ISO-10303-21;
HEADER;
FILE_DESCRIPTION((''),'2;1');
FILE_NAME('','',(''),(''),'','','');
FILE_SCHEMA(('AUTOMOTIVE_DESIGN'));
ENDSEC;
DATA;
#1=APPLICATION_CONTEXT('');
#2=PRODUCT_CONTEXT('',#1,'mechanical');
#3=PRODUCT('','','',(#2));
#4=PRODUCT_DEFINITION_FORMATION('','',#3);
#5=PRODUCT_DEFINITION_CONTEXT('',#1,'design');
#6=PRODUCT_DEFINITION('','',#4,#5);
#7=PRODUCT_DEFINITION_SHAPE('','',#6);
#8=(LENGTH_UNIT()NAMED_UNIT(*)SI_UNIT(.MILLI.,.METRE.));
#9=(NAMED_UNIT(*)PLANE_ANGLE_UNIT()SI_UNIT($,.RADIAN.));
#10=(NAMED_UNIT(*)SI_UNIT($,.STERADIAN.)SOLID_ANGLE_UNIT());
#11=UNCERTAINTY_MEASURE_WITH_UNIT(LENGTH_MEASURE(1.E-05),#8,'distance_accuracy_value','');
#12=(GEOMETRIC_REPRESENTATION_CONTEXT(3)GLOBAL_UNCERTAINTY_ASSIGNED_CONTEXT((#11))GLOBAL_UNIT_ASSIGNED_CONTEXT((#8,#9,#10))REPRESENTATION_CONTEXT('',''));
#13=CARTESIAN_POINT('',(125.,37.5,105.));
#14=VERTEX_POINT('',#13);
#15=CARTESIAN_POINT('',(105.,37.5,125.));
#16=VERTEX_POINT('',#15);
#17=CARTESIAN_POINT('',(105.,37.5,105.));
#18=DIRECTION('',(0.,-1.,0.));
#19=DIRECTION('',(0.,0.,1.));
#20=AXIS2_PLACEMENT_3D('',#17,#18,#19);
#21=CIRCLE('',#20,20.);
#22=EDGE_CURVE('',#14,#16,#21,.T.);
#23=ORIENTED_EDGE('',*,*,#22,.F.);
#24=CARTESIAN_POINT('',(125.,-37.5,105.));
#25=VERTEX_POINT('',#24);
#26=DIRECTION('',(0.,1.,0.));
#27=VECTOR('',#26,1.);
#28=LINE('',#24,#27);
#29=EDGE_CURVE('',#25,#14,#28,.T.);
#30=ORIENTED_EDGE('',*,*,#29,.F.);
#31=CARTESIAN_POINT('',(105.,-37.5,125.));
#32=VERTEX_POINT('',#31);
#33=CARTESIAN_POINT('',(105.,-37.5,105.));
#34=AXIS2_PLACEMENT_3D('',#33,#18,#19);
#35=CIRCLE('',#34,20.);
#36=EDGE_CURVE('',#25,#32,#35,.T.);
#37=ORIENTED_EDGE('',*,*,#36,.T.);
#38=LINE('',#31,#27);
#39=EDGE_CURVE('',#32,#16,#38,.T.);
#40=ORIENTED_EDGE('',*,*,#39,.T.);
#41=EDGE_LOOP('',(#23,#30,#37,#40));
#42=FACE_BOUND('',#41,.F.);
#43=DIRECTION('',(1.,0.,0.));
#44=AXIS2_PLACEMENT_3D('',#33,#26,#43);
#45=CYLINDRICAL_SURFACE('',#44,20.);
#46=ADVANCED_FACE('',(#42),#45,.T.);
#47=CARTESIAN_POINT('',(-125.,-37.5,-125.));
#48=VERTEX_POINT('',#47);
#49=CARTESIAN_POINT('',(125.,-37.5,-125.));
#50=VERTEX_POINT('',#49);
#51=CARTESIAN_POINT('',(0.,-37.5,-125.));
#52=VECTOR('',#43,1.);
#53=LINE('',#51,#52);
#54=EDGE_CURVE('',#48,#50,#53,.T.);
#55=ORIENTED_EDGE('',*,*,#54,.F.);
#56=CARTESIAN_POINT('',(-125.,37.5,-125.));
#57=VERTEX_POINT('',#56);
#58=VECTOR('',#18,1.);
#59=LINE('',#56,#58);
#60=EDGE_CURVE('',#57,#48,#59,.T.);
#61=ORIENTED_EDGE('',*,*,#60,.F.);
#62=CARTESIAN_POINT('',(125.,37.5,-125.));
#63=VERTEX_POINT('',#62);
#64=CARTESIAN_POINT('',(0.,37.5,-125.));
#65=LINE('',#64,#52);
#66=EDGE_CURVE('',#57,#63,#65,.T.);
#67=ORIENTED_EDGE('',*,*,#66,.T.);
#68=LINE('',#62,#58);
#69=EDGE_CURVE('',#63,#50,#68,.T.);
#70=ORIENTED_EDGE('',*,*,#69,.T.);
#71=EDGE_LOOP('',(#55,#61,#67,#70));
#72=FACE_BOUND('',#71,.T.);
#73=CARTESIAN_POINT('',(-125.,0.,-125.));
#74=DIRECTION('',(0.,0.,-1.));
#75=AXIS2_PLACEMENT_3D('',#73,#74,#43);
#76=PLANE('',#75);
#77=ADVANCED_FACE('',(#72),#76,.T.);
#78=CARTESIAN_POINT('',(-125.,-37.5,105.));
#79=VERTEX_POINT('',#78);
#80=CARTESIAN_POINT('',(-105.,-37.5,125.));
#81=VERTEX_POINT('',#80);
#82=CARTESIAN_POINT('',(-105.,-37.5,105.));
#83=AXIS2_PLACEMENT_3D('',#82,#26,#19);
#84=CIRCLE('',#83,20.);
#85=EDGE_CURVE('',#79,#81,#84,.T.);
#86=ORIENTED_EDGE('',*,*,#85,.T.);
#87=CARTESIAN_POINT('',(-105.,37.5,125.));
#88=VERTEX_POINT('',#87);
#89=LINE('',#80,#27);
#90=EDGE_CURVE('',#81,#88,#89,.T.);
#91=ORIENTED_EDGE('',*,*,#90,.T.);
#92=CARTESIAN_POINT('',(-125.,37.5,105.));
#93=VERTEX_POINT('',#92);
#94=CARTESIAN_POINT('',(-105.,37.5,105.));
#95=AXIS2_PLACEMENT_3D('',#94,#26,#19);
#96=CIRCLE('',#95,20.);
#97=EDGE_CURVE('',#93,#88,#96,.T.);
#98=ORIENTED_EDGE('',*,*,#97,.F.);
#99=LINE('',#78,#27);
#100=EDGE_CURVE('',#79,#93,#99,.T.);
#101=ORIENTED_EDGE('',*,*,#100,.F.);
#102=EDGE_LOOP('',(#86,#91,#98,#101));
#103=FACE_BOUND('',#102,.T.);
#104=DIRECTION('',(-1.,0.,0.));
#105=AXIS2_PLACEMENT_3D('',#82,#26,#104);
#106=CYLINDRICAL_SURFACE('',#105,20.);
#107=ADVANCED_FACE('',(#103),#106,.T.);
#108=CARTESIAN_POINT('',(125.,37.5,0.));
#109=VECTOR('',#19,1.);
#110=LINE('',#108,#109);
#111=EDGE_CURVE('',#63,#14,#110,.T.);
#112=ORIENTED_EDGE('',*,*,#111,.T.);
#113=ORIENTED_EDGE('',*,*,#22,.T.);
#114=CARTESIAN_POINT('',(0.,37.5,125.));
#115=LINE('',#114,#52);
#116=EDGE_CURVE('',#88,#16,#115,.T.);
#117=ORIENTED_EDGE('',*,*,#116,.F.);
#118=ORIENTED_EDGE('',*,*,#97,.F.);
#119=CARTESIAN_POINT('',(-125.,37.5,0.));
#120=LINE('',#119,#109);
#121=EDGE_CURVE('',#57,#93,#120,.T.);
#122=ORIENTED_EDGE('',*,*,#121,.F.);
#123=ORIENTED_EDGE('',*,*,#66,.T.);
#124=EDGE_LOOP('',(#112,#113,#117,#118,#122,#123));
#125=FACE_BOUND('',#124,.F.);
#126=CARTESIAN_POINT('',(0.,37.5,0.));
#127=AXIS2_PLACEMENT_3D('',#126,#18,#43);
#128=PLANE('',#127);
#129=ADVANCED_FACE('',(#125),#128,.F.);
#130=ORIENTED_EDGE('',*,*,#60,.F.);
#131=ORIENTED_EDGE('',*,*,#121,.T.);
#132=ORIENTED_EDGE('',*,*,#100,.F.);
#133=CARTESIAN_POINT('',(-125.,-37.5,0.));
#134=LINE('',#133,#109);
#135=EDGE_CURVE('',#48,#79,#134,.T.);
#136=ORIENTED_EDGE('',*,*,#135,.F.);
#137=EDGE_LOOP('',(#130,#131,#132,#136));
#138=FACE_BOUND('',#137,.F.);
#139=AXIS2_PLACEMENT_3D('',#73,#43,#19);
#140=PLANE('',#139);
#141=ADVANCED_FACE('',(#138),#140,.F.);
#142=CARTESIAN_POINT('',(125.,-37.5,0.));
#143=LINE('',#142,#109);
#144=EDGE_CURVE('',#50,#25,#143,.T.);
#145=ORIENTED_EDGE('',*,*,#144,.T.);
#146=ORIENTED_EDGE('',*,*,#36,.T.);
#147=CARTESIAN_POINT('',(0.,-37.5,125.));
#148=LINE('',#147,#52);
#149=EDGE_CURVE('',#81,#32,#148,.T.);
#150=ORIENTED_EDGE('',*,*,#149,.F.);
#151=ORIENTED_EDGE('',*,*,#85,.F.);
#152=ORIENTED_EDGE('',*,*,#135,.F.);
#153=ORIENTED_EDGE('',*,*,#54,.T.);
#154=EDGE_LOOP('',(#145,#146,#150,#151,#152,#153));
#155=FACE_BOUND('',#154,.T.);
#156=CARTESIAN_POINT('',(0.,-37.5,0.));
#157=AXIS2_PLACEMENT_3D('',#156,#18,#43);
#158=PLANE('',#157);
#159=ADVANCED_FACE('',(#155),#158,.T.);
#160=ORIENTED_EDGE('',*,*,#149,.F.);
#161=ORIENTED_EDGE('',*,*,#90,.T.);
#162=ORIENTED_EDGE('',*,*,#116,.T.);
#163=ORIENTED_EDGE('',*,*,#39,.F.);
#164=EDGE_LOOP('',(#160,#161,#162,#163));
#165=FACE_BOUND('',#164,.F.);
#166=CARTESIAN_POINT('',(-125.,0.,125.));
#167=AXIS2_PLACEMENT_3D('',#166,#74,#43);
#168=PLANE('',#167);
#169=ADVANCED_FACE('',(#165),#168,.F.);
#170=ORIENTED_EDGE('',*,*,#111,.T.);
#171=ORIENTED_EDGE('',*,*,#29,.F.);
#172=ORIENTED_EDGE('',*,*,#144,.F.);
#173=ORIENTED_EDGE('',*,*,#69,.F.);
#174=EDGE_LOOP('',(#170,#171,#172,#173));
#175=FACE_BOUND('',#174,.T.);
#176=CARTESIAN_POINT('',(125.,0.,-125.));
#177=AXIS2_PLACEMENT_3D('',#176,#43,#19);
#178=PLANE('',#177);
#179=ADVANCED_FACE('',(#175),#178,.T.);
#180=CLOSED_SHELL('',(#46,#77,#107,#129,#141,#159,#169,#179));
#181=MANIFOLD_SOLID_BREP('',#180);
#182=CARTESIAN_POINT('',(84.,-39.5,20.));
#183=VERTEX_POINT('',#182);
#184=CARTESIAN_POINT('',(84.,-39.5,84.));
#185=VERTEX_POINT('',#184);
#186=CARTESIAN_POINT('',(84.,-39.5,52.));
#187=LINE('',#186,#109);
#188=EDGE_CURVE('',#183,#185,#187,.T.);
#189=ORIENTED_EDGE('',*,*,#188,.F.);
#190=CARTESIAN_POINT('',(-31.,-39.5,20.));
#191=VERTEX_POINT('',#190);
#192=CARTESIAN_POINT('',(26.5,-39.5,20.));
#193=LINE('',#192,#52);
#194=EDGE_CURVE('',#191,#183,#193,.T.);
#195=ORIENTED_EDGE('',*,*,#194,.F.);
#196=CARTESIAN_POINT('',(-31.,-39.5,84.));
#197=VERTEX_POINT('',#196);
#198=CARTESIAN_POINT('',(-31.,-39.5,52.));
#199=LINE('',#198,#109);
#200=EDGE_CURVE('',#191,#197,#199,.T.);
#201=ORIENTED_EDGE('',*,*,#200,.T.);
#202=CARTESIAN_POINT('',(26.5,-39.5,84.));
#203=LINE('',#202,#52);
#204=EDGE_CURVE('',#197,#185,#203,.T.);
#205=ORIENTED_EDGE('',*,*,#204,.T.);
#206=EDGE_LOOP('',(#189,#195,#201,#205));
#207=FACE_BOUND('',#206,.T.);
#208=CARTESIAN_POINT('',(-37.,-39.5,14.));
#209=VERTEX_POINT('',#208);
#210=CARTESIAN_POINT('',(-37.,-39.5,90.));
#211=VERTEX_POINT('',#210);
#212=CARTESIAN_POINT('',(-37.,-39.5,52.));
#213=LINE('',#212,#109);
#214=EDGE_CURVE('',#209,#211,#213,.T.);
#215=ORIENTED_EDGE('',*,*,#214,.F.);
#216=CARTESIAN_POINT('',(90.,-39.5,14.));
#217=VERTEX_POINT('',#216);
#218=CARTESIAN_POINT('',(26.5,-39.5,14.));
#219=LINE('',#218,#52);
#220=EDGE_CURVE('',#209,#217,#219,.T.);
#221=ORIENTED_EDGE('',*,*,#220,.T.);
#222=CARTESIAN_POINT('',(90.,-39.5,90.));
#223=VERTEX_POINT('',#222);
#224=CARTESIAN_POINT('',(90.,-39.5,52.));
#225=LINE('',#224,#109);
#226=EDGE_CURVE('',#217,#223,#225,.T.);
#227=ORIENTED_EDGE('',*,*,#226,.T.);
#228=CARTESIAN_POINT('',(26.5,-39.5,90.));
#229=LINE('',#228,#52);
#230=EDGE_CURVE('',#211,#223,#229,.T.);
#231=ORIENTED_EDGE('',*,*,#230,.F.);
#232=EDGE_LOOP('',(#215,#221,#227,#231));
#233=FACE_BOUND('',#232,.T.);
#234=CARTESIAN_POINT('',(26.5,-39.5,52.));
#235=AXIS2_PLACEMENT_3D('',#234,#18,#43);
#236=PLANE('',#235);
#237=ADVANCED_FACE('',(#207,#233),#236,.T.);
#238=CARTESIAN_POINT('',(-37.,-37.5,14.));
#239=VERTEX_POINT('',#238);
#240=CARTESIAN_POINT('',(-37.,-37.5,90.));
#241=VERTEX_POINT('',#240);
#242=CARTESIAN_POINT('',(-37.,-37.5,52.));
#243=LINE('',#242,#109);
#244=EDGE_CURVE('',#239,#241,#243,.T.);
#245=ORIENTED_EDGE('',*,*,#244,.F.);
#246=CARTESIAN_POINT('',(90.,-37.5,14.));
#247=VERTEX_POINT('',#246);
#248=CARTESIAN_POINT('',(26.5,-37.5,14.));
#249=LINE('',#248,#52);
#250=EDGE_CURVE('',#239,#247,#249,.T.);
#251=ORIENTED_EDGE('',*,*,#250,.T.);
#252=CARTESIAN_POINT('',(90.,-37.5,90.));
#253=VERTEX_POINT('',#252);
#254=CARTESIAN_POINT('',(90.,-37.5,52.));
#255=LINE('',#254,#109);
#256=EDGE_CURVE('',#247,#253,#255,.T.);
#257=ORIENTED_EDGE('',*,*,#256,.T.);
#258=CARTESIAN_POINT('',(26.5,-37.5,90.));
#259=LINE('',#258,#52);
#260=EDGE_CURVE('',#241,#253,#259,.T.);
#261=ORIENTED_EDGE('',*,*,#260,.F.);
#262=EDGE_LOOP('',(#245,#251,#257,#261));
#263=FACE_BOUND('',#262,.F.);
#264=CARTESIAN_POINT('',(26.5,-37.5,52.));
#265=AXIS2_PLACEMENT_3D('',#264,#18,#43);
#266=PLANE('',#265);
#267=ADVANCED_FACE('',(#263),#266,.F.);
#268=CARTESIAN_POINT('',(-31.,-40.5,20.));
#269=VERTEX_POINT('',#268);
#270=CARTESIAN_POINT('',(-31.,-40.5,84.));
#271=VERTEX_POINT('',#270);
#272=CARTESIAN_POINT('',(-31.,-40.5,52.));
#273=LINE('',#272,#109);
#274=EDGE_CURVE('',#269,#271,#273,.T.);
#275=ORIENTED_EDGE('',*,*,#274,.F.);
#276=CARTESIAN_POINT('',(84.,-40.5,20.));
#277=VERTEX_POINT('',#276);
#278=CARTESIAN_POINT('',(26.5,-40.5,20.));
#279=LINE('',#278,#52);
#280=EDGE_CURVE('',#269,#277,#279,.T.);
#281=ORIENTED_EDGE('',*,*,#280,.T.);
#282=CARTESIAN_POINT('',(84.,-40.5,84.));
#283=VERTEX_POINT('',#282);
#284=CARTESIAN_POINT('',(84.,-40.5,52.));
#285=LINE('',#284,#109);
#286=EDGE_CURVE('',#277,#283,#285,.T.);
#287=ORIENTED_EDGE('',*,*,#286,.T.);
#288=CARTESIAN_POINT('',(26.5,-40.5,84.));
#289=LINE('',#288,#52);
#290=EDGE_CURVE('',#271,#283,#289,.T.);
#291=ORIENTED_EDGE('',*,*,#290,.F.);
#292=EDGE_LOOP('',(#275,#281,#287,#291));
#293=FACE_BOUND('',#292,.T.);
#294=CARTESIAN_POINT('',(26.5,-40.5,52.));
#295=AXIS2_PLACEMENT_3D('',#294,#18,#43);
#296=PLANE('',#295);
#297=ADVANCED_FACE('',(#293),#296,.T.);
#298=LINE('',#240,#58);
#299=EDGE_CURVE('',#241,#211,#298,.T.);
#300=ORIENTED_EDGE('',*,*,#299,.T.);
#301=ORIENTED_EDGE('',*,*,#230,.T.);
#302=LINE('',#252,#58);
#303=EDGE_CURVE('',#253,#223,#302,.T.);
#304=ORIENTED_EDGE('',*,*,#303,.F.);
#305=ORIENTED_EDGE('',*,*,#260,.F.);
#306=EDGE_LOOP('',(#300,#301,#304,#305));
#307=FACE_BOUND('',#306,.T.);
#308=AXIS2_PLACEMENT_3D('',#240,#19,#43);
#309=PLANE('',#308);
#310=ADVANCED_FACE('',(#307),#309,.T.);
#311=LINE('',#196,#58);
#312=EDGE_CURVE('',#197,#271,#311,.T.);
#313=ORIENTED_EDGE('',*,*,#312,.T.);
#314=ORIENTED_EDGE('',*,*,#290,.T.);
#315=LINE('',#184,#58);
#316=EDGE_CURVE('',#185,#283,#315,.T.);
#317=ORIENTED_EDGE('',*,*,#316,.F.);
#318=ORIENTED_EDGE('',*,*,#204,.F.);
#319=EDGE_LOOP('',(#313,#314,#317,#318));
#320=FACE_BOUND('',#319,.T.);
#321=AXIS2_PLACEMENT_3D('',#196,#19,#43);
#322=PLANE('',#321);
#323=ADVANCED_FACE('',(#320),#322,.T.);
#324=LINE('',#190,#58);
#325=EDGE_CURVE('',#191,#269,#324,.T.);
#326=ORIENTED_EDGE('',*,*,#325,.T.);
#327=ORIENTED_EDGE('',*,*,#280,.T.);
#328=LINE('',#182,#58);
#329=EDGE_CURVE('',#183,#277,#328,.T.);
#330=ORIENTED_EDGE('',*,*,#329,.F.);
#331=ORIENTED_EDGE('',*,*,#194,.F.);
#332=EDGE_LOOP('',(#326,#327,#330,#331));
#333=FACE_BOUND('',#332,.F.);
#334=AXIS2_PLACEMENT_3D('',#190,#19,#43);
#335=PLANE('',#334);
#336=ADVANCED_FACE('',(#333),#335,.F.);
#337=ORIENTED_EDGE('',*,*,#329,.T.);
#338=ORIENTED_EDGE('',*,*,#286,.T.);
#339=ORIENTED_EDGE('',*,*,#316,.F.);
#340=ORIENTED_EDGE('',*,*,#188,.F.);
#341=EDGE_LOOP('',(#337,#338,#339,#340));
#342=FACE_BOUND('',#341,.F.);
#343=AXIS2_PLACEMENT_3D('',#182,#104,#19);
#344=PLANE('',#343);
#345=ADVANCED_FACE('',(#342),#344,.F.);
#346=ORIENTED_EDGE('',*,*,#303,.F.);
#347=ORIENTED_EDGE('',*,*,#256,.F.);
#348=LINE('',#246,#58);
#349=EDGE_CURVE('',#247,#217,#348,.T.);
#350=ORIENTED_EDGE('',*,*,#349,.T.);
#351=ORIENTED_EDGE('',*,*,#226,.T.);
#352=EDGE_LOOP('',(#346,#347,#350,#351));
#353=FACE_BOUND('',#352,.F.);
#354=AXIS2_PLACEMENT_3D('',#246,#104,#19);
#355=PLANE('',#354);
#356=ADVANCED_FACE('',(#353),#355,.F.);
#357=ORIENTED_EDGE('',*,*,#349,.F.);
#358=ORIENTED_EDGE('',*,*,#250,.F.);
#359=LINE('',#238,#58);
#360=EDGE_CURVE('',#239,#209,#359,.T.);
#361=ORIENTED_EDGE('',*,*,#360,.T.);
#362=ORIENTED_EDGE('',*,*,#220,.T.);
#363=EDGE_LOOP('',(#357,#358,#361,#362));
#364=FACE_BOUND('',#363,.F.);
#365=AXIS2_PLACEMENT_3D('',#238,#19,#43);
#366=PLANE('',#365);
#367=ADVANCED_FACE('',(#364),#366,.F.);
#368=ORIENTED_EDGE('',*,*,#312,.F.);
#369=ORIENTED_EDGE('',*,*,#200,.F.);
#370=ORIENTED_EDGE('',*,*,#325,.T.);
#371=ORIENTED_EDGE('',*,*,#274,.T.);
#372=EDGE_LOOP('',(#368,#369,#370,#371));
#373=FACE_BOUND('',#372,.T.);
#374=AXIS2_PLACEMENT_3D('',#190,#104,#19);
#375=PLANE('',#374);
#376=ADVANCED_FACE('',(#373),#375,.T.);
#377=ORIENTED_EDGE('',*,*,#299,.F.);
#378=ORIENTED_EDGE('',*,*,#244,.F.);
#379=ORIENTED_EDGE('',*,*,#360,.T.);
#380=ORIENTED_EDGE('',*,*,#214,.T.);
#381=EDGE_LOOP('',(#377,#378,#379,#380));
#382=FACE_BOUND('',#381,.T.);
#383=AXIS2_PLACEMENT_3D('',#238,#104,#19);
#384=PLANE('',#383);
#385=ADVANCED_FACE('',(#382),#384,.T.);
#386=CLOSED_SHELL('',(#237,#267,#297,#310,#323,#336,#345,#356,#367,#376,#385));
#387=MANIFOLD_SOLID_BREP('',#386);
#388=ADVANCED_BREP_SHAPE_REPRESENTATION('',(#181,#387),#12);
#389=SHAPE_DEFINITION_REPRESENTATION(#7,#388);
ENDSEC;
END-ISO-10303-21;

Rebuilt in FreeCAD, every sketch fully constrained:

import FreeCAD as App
import Part
import Sketcher

V = App.Vector
Q = App.Units.Quantity


def edges_at(feature, points):
    """Names of the edges that pass closest to the given points."""
    edges = feature.Shape.Edges
    near = lambda p: min(range(len(edges)), key=lambda i: edges[i].distToShape(Part.Vertex(*p))[0])
    return sorted({f"Edge{near(p) + 1}" for p in points})


def add_polygon(sketch, points):
    """Adds a closed chain of lines whose ends are joined by coincident constraints."""
    first, n = sketch.GeometryCount, len(points)
    for a, b in zip(points, points[1:] + points[:1]):
        sketch.addGeometry(Part.LineSegment(App.Vector(*a, 0), App.Vector(*b, 0)), False)
    for i in range(n):
        sketch.addConstraint(Sketcher.Constraint("Coincident", first + i, 2, first + (i + 1) % n, 1))

doc = App.newDocument("Part")
body = doc.addObject("PartDesign::Body", "Body")

# Sketch on XZ plane
sketch1 = body.newObject("Sketcher::SketchObject", "Sketch")
sketch1.AttachmentSupport = (doc.getObject("XZ_Plane"), [""])
sketch1.MapMode = "FlatFace"
add_polygon(sketch1, [(-125, 125), (-125, -125), (125, -125), (125, 125)])  # lines 0-3
sketch1.addConstraint([
    Sketcher.Constraint("Vertical", 0),
    Sketcher.Constraint("Horizontal", 1),
    Sketcher.Constraint("Vertical", 2),
    Sketcher.Constraint("Horizontal", 3),
    Sketcher.Constraint("Symmetric", 0, 2, 2, 2, -1, 1),
    Sketcher.Constraint("Equal", 3, 0),
    Sketcher.Constraint("DistanceX", 1, 1, 1, 2, Q("250 mm")),
])
pad1 = body.newObject("PartDesign::Pad", "Pad")
pad1.Profile = sketch1
pad1.Length = 75
pad1.Midplane = True
doc.recompute()

fillet = body.newObject("PartDesign::Fillet", "Fillet")
fillet.Base = (pad1, edges_at(pad1, [(125, 0, 125), (-125, 0, 125)]))
fillet.Radius = 20
body2 = doc.addObject("PartDesign::Body", "Body001")

# Sketch on XZ plane
sketch2 = body2.newObject("Sketcher::SketchObject", "Sketch001")
sketch2.AttachmentSupport = (doc.getObject("XZ_Plane001"), [""])
sketch2.MapMode = "FlatFace"
sketch2.AttachmentOffset = App.Placement(V(0, 0, 37.5), App.Rotation())
add_polygon(sketch2, [(-37, 90), (-37, 14), (90, 14), (90, 90)])  # lines 0-3
sketch2.addConstraint([
    Sketcher.Constraint("Vertical", 0),
    Sketcher.Constraint("Horizontal", 1),
    Sketcher.Constraint("Vertical", 2),
    Sketcher.Constraint("Horizontal", 3),
    Sketcher.Constraint("DistanceX", 1, 1, 1, 2, Q("127 mm")),
    Sketcher.Constraint("DistanceY", 0, 2, 0, 1, Q("76 mm")),
    Sketcher.Constraint("DistanceX", 0, 2, -1, 1, Q("37 mm")),
    Sketcher.Constraint("DistanceY", -1, 1, 0, 2, Q("14 mm")),
])
pad2 = body2.newObject("PartDesign::Pad", "Pad001")
pad2.Profile = sketch2
pad2.Length = 2

# Sketch on XZ plane
sketch3 = body2.newObject("Sketcher::SketchObject", "Sketch002")
sketch3.AttachmentSupport = (doc.getObject("XZ_Plane001"), [""])
sketch3.MapMode = "FlatFace"
sketch3.AttachmentOffset = App.Placement(V(0, 0, 39.5), App.Rotation())
add_polygon(sketch3, [(-31, 84), (-31, 20), (84, 20), (84, 84)])  # lines 0-3
sketch3.addConstraint([
    Sketcher.Constraint("Vertical", 0),
    Sketcher.Constraint("Horizontal", 1),
    Sketcher.Constraint("Vertical", 2),
    Sketcher.Constraint("Horizontal", 3),
    Sketcher.Constraint("DistanceX", 1, 1, 1, 2, Q("115 mm")),
    Sketcher.Constraint("DistanceY", 0, 2, 0, 1, Q("64 mm")),
    Sketcher.Constraint("DistanceX", 0, 2, -1, 1, Q("31 mm")),
    Sketcher.Constraint("DistanceY", -1, 1, 0, 2, Q("20 mm")),
])
pad3 = body2.newObject("PartDesign::Pad", "Pad002")
pad3.Profile = sketch3
pad3.Length = 1

doc.recompute()
